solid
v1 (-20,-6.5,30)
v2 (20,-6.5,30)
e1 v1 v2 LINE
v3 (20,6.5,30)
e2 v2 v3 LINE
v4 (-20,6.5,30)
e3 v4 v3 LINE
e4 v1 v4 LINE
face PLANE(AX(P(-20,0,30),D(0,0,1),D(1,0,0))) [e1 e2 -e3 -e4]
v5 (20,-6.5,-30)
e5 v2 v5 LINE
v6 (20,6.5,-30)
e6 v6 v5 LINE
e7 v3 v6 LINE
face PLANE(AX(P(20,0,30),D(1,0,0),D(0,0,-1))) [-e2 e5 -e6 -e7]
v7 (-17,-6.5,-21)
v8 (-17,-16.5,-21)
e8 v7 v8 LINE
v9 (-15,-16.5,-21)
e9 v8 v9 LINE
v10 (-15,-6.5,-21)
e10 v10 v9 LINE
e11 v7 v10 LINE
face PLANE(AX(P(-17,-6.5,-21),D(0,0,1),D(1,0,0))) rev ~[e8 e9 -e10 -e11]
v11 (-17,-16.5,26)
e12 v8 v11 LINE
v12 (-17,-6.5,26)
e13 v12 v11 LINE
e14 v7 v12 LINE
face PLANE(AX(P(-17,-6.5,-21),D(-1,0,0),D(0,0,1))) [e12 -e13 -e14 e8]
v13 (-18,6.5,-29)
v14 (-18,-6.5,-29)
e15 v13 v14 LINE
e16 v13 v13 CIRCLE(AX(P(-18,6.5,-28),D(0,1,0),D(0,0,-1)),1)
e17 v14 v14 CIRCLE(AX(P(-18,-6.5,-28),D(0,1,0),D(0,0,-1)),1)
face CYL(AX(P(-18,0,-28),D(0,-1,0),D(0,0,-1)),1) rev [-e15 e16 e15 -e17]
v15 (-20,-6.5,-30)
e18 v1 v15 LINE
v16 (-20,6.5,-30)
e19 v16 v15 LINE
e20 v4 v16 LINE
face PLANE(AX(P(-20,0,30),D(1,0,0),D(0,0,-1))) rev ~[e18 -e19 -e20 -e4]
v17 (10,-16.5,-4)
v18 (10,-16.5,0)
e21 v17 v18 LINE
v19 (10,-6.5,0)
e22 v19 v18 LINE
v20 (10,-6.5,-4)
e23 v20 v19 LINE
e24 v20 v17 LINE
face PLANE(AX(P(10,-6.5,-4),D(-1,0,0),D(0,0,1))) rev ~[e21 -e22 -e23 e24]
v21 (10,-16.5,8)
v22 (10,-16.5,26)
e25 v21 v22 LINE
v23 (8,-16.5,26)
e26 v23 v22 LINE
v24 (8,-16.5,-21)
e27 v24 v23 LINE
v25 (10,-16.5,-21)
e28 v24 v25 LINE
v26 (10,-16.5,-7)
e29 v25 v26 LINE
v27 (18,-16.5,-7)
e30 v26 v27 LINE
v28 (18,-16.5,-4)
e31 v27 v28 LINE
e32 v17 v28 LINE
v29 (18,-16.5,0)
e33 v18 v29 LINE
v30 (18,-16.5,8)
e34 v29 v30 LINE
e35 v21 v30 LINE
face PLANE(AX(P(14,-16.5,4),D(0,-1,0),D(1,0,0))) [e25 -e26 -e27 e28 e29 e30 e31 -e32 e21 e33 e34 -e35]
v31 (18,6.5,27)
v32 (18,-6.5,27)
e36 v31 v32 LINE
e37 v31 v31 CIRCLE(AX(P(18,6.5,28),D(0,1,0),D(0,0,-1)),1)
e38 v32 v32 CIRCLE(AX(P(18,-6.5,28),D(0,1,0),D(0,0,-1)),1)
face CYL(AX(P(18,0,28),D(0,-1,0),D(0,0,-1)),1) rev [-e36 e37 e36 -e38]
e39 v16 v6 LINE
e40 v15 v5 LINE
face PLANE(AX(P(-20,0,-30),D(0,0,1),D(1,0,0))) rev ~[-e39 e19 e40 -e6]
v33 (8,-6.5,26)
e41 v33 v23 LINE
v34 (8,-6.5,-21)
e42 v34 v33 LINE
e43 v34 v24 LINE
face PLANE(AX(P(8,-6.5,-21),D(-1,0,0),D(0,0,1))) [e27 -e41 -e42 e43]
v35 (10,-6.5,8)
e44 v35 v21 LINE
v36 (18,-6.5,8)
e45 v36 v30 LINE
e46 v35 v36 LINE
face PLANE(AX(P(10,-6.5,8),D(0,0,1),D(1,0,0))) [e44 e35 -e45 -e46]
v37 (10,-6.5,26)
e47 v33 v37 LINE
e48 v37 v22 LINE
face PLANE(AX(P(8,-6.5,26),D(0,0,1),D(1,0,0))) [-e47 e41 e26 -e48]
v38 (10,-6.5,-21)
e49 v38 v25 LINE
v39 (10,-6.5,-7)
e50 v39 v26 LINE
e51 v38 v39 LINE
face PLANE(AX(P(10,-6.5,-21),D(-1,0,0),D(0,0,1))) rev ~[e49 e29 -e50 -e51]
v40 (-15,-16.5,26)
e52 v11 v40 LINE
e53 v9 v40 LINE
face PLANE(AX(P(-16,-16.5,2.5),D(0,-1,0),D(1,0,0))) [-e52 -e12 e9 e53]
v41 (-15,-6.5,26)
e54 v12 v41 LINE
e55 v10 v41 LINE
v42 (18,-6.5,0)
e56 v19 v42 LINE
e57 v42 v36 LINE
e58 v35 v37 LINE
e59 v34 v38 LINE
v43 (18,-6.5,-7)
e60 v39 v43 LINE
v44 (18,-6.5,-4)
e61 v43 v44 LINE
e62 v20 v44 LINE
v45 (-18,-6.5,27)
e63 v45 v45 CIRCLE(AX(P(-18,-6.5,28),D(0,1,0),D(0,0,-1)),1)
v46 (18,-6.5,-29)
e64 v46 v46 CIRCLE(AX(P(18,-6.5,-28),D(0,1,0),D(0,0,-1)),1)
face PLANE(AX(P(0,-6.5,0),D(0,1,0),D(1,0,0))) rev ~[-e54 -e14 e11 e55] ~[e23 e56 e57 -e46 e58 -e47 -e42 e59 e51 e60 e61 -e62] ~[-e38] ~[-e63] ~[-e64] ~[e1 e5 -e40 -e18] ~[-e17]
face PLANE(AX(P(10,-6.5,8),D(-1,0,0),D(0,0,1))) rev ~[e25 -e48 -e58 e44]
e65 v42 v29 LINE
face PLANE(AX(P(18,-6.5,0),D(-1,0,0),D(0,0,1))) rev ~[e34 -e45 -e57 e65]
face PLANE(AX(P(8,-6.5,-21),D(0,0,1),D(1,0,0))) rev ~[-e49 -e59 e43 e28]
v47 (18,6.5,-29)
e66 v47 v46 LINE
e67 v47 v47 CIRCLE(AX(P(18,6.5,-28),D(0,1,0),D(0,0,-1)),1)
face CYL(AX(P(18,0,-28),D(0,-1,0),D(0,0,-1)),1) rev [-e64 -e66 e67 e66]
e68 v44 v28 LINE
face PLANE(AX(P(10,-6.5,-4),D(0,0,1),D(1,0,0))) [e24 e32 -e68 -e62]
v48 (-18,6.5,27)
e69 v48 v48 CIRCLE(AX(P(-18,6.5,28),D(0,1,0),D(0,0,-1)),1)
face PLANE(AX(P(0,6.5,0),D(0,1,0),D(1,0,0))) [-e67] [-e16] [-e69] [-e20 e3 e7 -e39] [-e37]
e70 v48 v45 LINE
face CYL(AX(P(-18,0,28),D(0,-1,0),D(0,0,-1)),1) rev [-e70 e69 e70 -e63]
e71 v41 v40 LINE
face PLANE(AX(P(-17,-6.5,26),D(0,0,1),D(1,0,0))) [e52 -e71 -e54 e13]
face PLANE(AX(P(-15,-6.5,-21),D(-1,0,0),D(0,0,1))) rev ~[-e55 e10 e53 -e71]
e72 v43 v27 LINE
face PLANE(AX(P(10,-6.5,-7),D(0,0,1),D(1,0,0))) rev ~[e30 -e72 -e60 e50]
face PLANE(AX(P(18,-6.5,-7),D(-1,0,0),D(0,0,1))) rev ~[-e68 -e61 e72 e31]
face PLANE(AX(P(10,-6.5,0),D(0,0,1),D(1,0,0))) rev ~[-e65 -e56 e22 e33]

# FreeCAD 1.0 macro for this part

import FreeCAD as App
import Part
import Sketcher
from FreeCAD import Vector
Q = App.Units.Quantity

doc = App.newDocument("Part")
body = doc.addObject("PartDesign::Body", "Body")

# Sketch on XZ plane
sketch1 = doc.addObject("Sketcher::SketchObject", "Sketch")
body.addObject(sketch1)
sketch1.AttachmentSupport = (doc.XZ_Plane, [""])
sketch1.MapMode = "FlatFace"
sketch1.addGeometry([
    Part.LineSegment(Vector(-20, -30, 0), Vector(-20, 30, 0)),  # 0
    Part.LineSegment(Vector(-20, 30, 0), Vector(20, 30, 0)),  # 1
    Part.LineSegment(Vector(20, 30, 0), Vector(20, -30, 0)),  # 2
    Part.LineSegment(Vector(20, -30, 0), Vector(-20, -30, 0)),  # 3
    Part.Circle(Vector(-18, 28, 0), Vector(0, 0, 1), 1),  # 4
    Part.Circle(Vector(18, 28, 0), Vector(0, 0, 1), 1),  # 5
    Part.Circle(Vector(-18, -28, 0), Vector(0, 0, 1), 1),  # 6
    Part.Circle(Vector(18, -28, 0), Vector(0, 0, 1), 1),  # 7
], False)
sketch1.addConstraint([
    Sketcher.Constraint("Coincident", 0, 2, 1, 1),
    Sketcher.Constraint("Coincident", 1, 2, 2, 1),
    Sketcher.Constraint("Coincident", 2, 2, 3, 1),
    Sketcher.Constraint("Coincident", 3, 2, 0, 1),
    Sketcher.Constraint("Vertical", 0),
    Sketcher.Constraint("Horizontal", 1),
    Sketcher.Constraint("Vertical", 2),
    Sketcher.Constraint("Horizontal", 3),
    Sketcher.Constraint("Equal", 4, 5),
    Sketcher.Constraint("Equal", 5, 6),
    Sketcher.Constraint("Equal", 6, 7),
    Sketcher.Constraint("Symmetric", 5, 3, 6, 3, -1, 1),
    Sketcher.Constraint("Symmetric", 4, 3, 7, 3, -1, 1),
    Sketcher.Constraint("Symmetric", 0, 2, 2, 2, -1, 1),
    Sketcher.Constraint("Symmetric", 4, 3, 5, 3, -2),
    Sketcher.Constraint("Diameter", 4, Q("2 mm")),
    Sketcher.Constraint("DistanceX", 1, 1, 1, 2, Q("40 mm")),
    Sketcher.Constraint("DistanceY", 0, 1, 0, 2, Q("60 mm")),
    Sketcher.Constraint("DistanceX", 4, 3, -1, 1, Q("18 mm")),
    Sketcher.Constraint("DistanceY", -1, 1, 4, 3, Q("28 mm")),
])
pad1 = doc.addObject("PartDesign::Pad", "Pad")
body.addObject(pad1)
pad1.Profile = sketch1
pad1.Length = 13
pad1.Midplane = True

# Sketch on XZ plane
sketch2 = doc.addObject("Sketcher::SketchObject", "Sketch001")
body.addObject(sketch2)
sketch2.AttachmentSupport = (doc.XZ_Plane, [""])
sketch2.MapMode = "FlatFace"
sketch2.AttachmentOffset = App.Placement(Vector(0, 0, 6.5), App.Rotation())
sketch2.addGeometry([
    Part.LineSegment(Vector(10, 0, 0), Vector(18, 0, 0)),  # 0
    Part.LineSegment(Vector(18, 0, 0), Vector(18, 8, 0)),  # 1
    Part.LineSegment(Vector(18, 8, 0), Vector(10, 8, 0)),  # 2
    Part.LineSegment(Vector(10, 8, 0), Vector(10, 26, 0)),  # 3
    Part.LineSegment(Vector(10, 26, 0), Vector(8, 26, 0)),  # 4
    Part.LineSegment(Vector(8, 26, 0), Vector(8, -21, 0)),  # 5
    Part.LineSegment(Vector(8, -21, 0), Vector(10, -21, 0)),  # 6
    Part.LineSegment(Vector(10, -21, 0), Vector(10, -7, 0)),  # 7
    Part.LineSegment(Vector(10, -7, 0), Vector(18, -7, 0)),  # 8
    Part.LineSegment(Vector(18, -7, 0), Vector(18, -4, 0)),  # 9
    Part.LineSegment(Vector(18, -4, 0), Vector(10, -4, 0)),  # 10
    Part.LineSegment(Vector(10, -4, 0), Vector(10, 0, 0)),  # 11
    Part.LineSegment(Vector(-17, 26, 0), Vector(-17, -21, 0)),  # 12
    Part.LineSegment(Vector(-17, -21, 0), Vector(-15, -21, 0)),  # 13
    Part.LineSegment(Vector(-15, -21, 0), Vector(-15, 26, 0)),  # 14
    Part.LineSegment(Vector(-15, 26, 0), Vector(-17, 26, 0)),  # 15
], False)
sketch2.addConstraint([
    Sketcher.Constraint("Coincident", 0, 2, 1, 1),
    Sketcher.Constraint("Coincident", 1, 2, 2, 1),
    Sketcher.Constraint("Coincident", 2, 2, 3, 1),
    Sketcher.Constraint("Coincident", 3, 2, 4, 1),
    Sketcher.Constraint("Coincident", 4, 2, 5, 1),
    Sketcher.Constraint("Coincident", 5, 2, 6, 1),
    Sketcher.Constraint("Coincident", 6, 2, 7, 1),
    Sketcher.Constraint("Coincident", 7, 2, 8, 1),
    Sketcher.Constraint("Coincident", 8, 2, 9, 1),
    Sketcher.Constraint("Coincident", 9, 2, 10, 1),
    Sketcher.Constraint("Coincident", 10, 2, 11, 1),
    Sketcher.Constraint("Coincident", 11, 2, 0, 1),
    Sketcher.Constraint("Coincident", 12, 2, 13, 1),
    Sketcher.Constraint("Coincident", 13, 2, 14, 1),
    Sketcher.Constraint("Coincident", 14, 2, 15, 1),
    Sketcher.Constraint("Coincident", 15, 2, 12, 1),
    Sketcher.Constraint("Horizontal", 0),
    Sketcher.Constraint("Vertical", 1),
    Sketcher.Constraint("Horizontal", 2),
    Sketcher.Constraint("Vertical", 3),
    Sketcher.Constraint("Horizontal", 4),
    Sketcher.Constraint("Vertical", 5),
    Sketcher.Constraint("Horizontal", 6),
    Sketcher.Constraint("Vertical", 7),
    Sketcher.Constraint("Horizontal", 8),
    Sketcher.Constraint("Vertical", 9),
    Sketcher.Constraint("Horizontal", 10),
    Sketcher.Constraint("Vertical", 11),
    Sketcher.Constraint("Vertical", 12),
    Sketcher.Constraint("Horizontal", 13),
    Sketcher.Constraint("Vertical", 14),
    Sketcher.Constraint("Horizontal", 15),
    Sketcher.Constraint("PointOnObject", 0, 2, -1),
    Sketcher.Constraint("Horizontal", 6, 2, 12, 2),
    Sketcher.Constraint("Horizontal", 4, 2, 14, 2),
    Sketcher.Constraint("Vertical", 3, 2, 6, 2),
    Sketcher.Constraint("Vertical", 1, 2, 8, 2),
    Sketcher.Constraint("Vertical", 7, 2, 10, 2),
    Sketcher.Constraint("Equal", 6, 13),
    Sketcher.Constraint("Equal", 10, 1),
    Sketcher.Constraint("DistanceX", 0, 1, 0, 2, Q("8 mm")),
    Sketcher.Constraint("DistanceX", 4, 2, 4, 1, Q("2 mm")),
    Sketcher.Constraint("DistanceY", 3, 1, 3, 2, Q("18 mm")),
    Sketcher.Constraint("DistanceY", 5, 2, 5, 1, Q("47 mm")),
    Sketcher.Constraint("DistanceY", 7, 1, 7, 2, Q("14 mm")),
    Sketcher.Constraint("DistanceY", 9, 1, 9, 2, Q("3 mm")),
    Sketcher.Constraint("DistanceX", -1, 1, 0, 2, Q("18 mm")),
    Sketcher.Constraint("DistanceX", 12, 2, -1, 1, Q("17 mm")),
])
pad2 = doc.addObject("PartDesign::Pad", "Pad001")
body.addObject(pad2)
pad2.Profile = sketch2
pad2.Length = 10

doc.recompute()
